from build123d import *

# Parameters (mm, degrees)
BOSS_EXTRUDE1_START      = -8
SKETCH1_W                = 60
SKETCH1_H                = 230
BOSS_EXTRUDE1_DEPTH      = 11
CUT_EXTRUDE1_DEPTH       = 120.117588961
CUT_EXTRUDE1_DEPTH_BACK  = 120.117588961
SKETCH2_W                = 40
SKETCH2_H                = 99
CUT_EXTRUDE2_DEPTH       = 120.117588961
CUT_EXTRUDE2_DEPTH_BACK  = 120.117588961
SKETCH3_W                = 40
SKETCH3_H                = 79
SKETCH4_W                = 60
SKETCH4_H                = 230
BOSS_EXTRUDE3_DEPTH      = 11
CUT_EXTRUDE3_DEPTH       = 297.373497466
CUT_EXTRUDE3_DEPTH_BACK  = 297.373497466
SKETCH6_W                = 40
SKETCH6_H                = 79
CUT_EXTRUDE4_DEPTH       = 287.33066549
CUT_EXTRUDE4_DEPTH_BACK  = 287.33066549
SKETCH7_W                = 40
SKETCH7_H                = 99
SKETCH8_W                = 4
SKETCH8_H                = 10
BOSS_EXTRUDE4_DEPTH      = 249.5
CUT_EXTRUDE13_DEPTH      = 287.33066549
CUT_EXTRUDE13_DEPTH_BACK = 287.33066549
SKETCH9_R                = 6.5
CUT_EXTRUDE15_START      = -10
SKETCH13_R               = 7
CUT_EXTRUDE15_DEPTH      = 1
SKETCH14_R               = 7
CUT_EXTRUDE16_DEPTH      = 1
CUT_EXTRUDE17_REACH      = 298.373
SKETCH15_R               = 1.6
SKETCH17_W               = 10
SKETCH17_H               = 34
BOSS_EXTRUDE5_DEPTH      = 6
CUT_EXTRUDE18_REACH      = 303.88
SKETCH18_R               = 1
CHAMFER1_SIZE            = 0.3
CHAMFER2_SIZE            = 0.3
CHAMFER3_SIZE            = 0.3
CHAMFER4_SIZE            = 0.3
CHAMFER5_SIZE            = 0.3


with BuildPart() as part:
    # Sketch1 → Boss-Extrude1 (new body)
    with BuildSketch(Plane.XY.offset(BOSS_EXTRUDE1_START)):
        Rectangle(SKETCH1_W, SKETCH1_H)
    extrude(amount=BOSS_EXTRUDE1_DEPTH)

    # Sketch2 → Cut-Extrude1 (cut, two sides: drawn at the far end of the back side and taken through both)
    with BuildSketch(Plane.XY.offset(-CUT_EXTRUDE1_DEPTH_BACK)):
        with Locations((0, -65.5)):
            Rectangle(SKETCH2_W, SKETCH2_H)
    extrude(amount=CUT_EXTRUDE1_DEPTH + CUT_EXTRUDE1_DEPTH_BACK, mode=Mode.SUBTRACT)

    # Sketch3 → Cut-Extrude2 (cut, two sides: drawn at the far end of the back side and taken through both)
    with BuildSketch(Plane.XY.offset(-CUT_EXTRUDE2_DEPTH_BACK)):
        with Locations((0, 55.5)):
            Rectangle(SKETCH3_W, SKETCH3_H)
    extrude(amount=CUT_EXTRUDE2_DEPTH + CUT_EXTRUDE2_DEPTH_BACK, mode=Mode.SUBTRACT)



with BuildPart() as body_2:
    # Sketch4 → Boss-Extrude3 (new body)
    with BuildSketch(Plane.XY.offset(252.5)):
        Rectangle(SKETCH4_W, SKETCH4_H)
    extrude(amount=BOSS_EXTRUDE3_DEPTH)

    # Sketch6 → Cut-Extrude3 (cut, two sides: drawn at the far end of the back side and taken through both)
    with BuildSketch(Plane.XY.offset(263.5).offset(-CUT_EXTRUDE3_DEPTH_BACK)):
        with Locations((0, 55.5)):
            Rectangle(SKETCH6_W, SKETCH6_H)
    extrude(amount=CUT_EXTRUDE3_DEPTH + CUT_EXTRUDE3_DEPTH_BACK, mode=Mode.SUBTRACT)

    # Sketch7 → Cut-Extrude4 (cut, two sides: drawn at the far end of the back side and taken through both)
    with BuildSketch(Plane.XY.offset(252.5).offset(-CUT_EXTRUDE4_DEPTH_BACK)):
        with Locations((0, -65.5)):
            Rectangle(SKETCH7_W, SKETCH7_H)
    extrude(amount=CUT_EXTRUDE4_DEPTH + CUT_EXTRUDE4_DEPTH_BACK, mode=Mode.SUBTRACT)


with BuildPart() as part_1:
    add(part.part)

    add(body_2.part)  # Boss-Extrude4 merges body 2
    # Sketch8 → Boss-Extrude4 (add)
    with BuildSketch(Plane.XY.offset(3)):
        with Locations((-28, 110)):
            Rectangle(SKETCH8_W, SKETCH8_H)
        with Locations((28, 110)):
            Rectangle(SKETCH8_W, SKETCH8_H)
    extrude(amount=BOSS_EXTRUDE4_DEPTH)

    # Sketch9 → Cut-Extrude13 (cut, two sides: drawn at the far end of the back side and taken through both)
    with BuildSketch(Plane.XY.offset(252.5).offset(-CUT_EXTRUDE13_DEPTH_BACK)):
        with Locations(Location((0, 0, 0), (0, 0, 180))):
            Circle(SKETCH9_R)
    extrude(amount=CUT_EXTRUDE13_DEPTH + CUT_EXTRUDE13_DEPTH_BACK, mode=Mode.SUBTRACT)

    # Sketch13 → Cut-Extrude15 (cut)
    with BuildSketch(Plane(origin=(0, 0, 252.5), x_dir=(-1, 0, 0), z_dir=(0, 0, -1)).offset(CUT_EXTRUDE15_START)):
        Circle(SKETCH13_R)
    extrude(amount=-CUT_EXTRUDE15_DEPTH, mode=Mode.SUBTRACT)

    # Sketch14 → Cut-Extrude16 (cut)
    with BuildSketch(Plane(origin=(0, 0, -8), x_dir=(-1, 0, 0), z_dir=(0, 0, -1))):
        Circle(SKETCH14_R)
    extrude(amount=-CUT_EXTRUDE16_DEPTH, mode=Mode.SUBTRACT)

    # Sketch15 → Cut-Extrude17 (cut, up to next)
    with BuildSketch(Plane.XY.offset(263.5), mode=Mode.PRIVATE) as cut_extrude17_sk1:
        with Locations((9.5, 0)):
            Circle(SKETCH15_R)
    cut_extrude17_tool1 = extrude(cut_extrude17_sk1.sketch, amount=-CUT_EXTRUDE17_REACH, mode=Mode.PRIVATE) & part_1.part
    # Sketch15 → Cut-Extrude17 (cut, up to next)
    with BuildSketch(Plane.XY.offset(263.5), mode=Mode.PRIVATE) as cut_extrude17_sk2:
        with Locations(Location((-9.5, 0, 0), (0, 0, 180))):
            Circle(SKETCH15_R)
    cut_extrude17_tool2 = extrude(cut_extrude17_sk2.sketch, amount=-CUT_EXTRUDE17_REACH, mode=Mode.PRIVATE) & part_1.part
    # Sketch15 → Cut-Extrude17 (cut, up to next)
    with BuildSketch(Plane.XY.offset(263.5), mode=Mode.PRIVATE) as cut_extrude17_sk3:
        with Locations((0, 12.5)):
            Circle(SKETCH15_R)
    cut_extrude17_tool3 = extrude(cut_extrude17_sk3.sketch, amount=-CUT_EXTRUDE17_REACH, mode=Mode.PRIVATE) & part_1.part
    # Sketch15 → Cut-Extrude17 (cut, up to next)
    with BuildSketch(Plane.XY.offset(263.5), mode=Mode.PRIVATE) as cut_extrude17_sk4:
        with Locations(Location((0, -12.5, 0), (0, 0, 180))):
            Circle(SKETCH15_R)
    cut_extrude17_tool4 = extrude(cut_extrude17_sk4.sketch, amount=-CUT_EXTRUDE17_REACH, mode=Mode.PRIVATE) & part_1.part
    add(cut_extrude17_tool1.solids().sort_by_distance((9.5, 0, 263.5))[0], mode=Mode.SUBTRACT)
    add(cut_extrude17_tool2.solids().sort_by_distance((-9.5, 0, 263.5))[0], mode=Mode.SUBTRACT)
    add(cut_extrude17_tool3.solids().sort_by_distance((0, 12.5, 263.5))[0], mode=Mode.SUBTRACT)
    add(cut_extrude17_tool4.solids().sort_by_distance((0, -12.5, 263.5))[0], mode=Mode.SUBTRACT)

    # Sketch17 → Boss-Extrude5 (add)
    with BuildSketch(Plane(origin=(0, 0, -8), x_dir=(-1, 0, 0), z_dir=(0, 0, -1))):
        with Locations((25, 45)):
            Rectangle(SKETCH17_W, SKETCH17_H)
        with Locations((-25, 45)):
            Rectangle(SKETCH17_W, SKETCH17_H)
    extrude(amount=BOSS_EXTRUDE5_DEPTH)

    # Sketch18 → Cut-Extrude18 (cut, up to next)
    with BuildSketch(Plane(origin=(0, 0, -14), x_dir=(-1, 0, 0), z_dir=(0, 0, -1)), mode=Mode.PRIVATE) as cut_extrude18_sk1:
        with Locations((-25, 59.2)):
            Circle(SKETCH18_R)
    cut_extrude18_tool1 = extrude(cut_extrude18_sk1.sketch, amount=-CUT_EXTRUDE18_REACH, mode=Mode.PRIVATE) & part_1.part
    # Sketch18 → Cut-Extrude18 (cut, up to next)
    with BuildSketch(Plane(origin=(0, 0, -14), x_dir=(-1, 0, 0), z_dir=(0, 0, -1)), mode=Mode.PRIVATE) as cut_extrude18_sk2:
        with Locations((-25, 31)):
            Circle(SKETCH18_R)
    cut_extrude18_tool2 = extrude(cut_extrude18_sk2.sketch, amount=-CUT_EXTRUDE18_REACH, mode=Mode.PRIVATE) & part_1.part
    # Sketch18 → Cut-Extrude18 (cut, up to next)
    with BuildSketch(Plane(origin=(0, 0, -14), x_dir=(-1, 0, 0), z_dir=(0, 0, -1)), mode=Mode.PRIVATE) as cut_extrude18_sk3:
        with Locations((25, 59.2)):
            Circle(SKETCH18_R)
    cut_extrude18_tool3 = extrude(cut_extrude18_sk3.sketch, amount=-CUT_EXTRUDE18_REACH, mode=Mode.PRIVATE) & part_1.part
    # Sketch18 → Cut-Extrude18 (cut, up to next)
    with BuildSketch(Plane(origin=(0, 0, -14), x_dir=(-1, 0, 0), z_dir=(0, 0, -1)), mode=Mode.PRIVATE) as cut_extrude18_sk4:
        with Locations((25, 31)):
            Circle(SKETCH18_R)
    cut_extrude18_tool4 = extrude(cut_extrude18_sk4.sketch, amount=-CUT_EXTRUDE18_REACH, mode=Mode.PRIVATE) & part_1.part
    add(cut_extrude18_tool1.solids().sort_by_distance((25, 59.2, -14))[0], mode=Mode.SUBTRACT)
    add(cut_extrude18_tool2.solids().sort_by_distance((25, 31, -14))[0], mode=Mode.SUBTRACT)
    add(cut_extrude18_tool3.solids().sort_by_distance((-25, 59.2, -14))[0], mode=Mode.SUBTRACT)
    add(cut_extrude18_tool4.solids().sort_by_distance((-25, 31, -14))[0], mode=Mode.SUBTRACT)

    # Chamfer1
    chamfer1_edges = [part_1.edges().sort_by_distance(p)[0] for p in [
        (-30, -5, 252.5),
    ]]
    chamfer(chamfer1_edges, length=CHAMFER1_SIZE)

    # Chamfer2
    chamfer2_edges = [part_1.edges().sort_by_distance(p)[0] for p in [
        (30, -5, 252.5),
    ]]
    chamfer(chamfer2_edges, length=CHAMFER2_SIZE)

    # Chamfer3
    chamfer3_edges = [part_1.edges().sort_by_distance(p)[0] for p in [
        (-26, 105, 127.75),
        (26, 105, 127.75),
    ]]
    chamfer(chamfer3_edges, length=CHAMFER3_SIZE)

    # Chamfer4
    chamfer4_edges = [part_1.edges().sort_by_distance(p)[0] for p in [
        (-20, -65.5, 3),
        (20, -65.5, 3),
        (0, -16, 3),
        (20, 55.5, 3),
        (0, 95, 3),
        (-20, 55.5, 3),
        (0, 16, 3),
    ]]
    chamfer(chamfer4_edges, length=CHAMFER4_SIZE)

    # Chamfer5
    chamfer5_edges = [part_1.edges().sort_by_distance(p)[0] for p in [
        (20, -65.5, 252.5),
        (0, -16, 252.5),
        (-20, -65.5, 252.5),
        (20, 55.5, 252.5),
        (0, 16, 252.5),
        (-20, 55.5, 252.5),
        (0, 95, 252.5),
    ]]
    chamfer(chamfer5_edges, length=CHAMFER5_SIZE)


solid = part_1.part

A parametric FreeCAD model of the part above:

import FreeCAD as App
import Part
import Sketcher


def edges_at(feature, points):
    """Names of the edges that pass closest to the given points."""
    edges = feature.Shape.Edges
    near = lambda p: min(range(len(edges)), key=lambda i: edges[i].distToShape(Part.Vertex(*p))[0])
    return sorted({f"Edge{near(p) + 1}" for p in points})


def add_polygon(sketch, points):
    """Adds a closed chain of lines whose ends are joined by coincident constraints."""
    first, n = sketch.GeometryCount, len(points)
    for a, b in zip(points, points[1:] + points[:1]):
        sketch.addGeometry(Part.LineSegment(App.Vector(*a, 0), App.Vector(*b, 0)), False)
    for i in range(n):
        sketch.addConstraint(Sketcher.Constraint("Coincident", first + i, 2, first + (i + 1) % n, 1))

doc = App.newDocument("Part")
body = doc.addObject("PartDesign::Body", "Body")

sketch1 = body.newObject("Sketcher::SketchObject", "Sketch")
sketch1.AttachmentSupport = (doc.getObject("XY_Plane"), [""])
sketch1.MapMode = "FlatFace"
sketch1.AttachmentOffset = App.Placement(App.Vector(0, 0, -8), App.Rotation())
add_polygon(sketch1, [(-30, 115), (-30, -115), (30, -115), (30, 115)])
sketch1.addConstraint(Sketcher.Constraint("Vertical", 0))
sketch1.addConstraint(Sketcher.Constraint("Horizontal", 1))
sketch1.addConstraint(Sketcher.Constraint("Vertical", 2))
sketch1.addConstraint(Sketcher.Constraint("Horizontal", 3))
sketch1.addConstraint(Sketcher.Constraint("Symmetric", 0, 2, 2, 2, -1, 1))
sketch1.addConstraint(Sketcher.Constraint("DistanceX", 1, 1, 1, 2, 60.0))
sketch1.addConstraint(Sketcher.Constraint("DistanceY", 0, 2, 0, 1, 230.0))
pad1 = body.newObject("PartDesign::Pad", "Pad")
pad1.Profile = sketch1
pad1.Length = 11

sketch2 = body.newObject("Sketcher::SketchObject", "Sketch001")
sketch2.AttachmentSupport = (doc.getObject("XY_Plane"), [""])
sketch2.MapMode = "FlatFace"
add_polygon(sketch2, [(-20, -16), (-20, -115), (20, -115), (20, -16)])
sketch2.addConstraint(Sketcher.Constraint("Vertical", 0))
sketch2.addConstraint(Sketcher.Constraint("Horizontal", 1))
sketch2.addConstraint(Sketcher.Constraint("Vertical", 2))
sketch2.addConstraint(Sketcher.Constraint("Horizontal", 3))
sketch2.addConstraint(Sketcher.Constraint("DistanceX", 1, 1, 1, 2, 40.0))
sketch2.addConstraint(Sketcher.Constraint("DistanceY", 0, 2, 0, 1, 99.0))
sketch2.addConstraint(Sketcher.Constraint("DistanceX", 0, 2, -1, 1, 20.0))
sketch2.addConstraint(Sketcher.Constraint("DistanceY", 0, 2, -1, 1, 115.0))
pocket1 = body.newObject("PartDesign::Pocket", "Pocket")
pocket1.Profile = sketch2
pocket1.Type = "ThroughAll"
pocket1.Midplane = True

sketch3 = body.newObject("Sketcher::SketchObject", "Sketch002")
sketch3.AttachmentSupport = (doc.getObject("XY_Plane"), [""])
sketch3.MapMode = "FlatFace"
add_polygon(sketch3, [(-20, 95), (-20, 16), (20, 16), (20, 95)])
sketch3.addConstraint(Sketcher.Constraint("Vertical", 0))
sketch3.addConstraint(Sketcher.Constraint("Horizontal", 1))
sketch3.addConstraint(Sketcher.Constraint("Vertical", 2))
sketch3.addConstraint(Sketcher.Constraint("Horizontal", 3))
sketch3.addConstraint(Sketcher.Constraint("DistanceX", 1, 1, 1, 2, 40.0))
sketch3.addConstraint(Sketcher.Constraint("DistanceY", 0, 2, 0, 1, 79.0))
sketch3.addConstraint(Sketcher.Constraint("DistanceX", 0, 2, -1, 1, 20.0))
sketch3.addConstraint(Sketcher.Constraint("DistanceY", -1, 1, 0, 2, 16.0))
pocket2 = body.newObject("PartDesign::Pocket", "Pocket001")
pocket2.Profile = sketch3
pocket2.Type = "ThroughAll"
pocket2.Midplane = True
body2 = doc.addObject("PartDesign::Body", "Body001")

sketch4 = body2.newObject("Sketcher::SketchObject", "Sketch003")
sketch4.AttachmentSupport = (doc.getObject("XY_Plane001"), [""])
sketch4.MapMode = "FlatFace"
sketch4.AttachmentOffset = App.Placement(App.Vector(0, 0, 252.5), App.Rotation())
add_polygon(sketch4, [(-30, 115), (-30, -115), (30, -115), (30, 115)])
sketch4.addConstraint(Sketcher.Constraint("Vertical", 0))
sketch4.addConstraint(Sketcher.Constraint("Horizontal", 1))
sketch4.addConstraint(Sketcher.Constraint("Vertical", 2))
sketch4.addConstraint(Sketcher.Constraint("Horizontal", 3))
sketch4.addConstraint(Sketcher.Constraint("Symmetric", 0, 2, 2, 2, -1, 1))
sketch4.addConstraint(Sketcher.Constraint("DistanceX", 1, 1, 1, 2, 60.0))
sketch4.addConstraint(Sketcher.Constraint("DistanceY", 0, 2, 0, 1, 230.0))
pad2 = body2.newObject("PartDesign::Pad", "Pad001")
pad2.Profile = sketch4
pad2.Length = 11

sketch5 = body2.newObject("Sketcher::SketchObject", "Sketch004")
sketch5.AttachmentSupport = (doc.getObject("XY_Plane001"), [""])
sketch5.MapMode = "FlatFace"
sketch5.AttachmentOffset = App.Placement(App.Vector(0, 0, 263.5), App.Rotation())
add_polygon(sketch5, [(-20, 95), (-20, 16), (20, 16), (20, 95)])
sketch5.addConstraint(Sketcher.Constraint("Vertical", 0))
sketch5.addConstraint(Sketcher.Constraint("Horizontal", 1))
sketch5.addConstraint(Sketcher.Constraint("Vertical", 2))
sketch5.addConstraint(Sketcher.Constraint("Horizontal", 3))
sketch5.addConstraint(Sketcher.Constraint("DistanceX", 1, 1, 1, 2, 40.0))
sketch5.addConstraint(Sketcher.Constraint("DistanceY", 0, 2, 0, 1, 79.0))
sketch5.addConstraint(Sketcher.Constraint("DistanceX", 0, 2, -1, 1, 20.0))
sketch5.addConstraint(Sketcher.Constraint("DistanceY", -1, 1, 0, 2, 16.0))
pocket3 = body2.newObject("PartDesign::Pocket", "Pocket002")
pocket3.Profile = sketch5
pocket3.Type = "ThroughAll"
pocket3.Midplane = True

sketch6 = body2.newObject("Sketcher::SketchObject", "Sketch005")
sketch6.AttachmentSupport = (doc.getObject("XY_Plane001"), [""])
sketch6.MapMode = "FlatFace"
sketch6.AttachmentOffset = App.Placement(App.Vector(0, 0, 252.5), App.Rotation())
add_polygon(sketch6, [(-20, -16), (-20, -115), (20, -115), (20, -16)])
sketch6.addConstraint(Sketcher.Constraint("Vertical", 0))
sketch6.addConstraint(Sketcher.Constraint("Horizontal", 1))
sketch6.addConstraint(Sketcher.Constraint("Vertical", 2))
sketch6.addConstraint(Sketcher.Constraint("Horizontal", 3))
sketch6.addConstraint(Sketcher.Constraint("DistanceX", 1, 1, 1, 2, 40.0))
sketch6.addConstraint(Sketcher.Constraint("DistanceY", 0, 2, 0, 1, 99.0))
sketch6.addConstraint(Sketcher.Constraint("DistanceX", 0, 2, -1, 1, 20.0))
sketch6.addConstraint(Sketcher.Constraint("DistanceY", 0, 2, -1, 1, 115.0))
pocket4 = body2.newObject("PartDesign::Pocket", "Pocket003")
pocket4.Profile = sketch6
pocket4.Type = "ThroughAll"
pocket4.Midplane = True
body.AllowCompound = True
doc.recompute()

boolean = body.newObject("PartDesign::Boolean", "Boolean")
boolean.Type = "Fuse"
boolean.addObjects([body2])

sketch7 = body.newObject("Sketcher::SketchObject", "Sketch006")
sketch7.AttachmentSupport = (doc.getObject("XY_Plane"), [""])
sketch7.MapMode = "FlatFace"
sketch7.AttachmentOffset = App.Placement(App.Vector(0, 0, 3), App.Rotation())
add_polygon(sketch7, [(-30, 115), (-30, 105), (-26, 105), (-26, 115)])
add_polygon(sketch7, [(26, 115), (26, 105), (30, 105), (30, 115)])
sketch7.addConstraint(Sketcher.Constraint("Vertical", 0))
sketch7.addConstraint(Sketcher.Constraint("Horizontal", 1))
sketch7.addConstraint(Sketcher.Constraint("Vertical", 2))
sketch7.addConstraint(Sketcher.Constraint("Horizontal", 3))
sketch7.addConstraint(Sketcher.Constraint("Vertical", 4))
sketch7.addConstraint(Sketcher.Constraint("Horizontal", 5))
sketch7.addConstraint(Sketcher.Constraint("Vertical", 6))
sketch7.addConstraint(Sketcher.Constraint("Horizontal", 7))
sketch7.addConstraint(Sketcher.Constraint("Symmetric", 1, 2, 4, 2, -2))
sketch7.addConstraint(Sketcher.Constraint("Symmetric", 3, 2, 6, 2, -2))
sketch7.addConstraint(Sketcher.Constraint("DistanceX", 1, 1, 1, 2, 4.0))
sketch7.addConstraint(Sketcher.Constraint("DistanceY", 0, 2, 0, 1, 10.0))
sketch7.addConstraint(Sketcher.Constraint("DistanceX", 0, 2, -1, 1, 30.0))
sketch7.addConstraint(Sketcher.Constraint("DistanceY", -1, 1, 0, 2, 105.0))
pad3 = body.newObject("PartDesign::Pad", "Pad002")
pad3.Profile = sketch7
pad3.Length = 249.5

sketch8 = body.newObject("Sketcher::SketchObject", "Sketch007")
sketch8.AttachmentSupport = (doc.getObject("XY_Plane"), [""])
sketch8.MapMode = "FlatFace"
sketch8.AttachmentOffset = App.Placement(App.Vector(0, 0, 252.5), App.Rotation())
sketch8.addGeometry(Part.Circle(App.Vector(0, 0, 0), App.Vector(0, 0, 1), 6.5), False)
sketch8.addConstraint(Sketcher.Constraint("Coincident", 0, 3, -1, 1))
sketch8.addConstraint(Sketcher.Constraint("Diameter", 0, 13.0))
pocket5 = body.newObject("PartDesign::Pocket", "Pocket004")
pocket5.Profile = sketch8
pocket5.Type = "ThroughAll"
pocket5.Midplane = True

sketch9 = body.newObject("Sketcher::SketchObject", "Sketch008")
sketch9.AttachmentSupport = (doc.getObject("XY_Plane"), [""])
sketch9.MapMode = "FlatFace"
sketch9.AttachmentOffset = App.Placement(App.Vector(0, 0, 262.5), App.Rotation())
sketch9.addGeometry(Part.Circle(App.Vector(0, 0, 0), App.Vector(0, 0, 1), 7), False)
sketch9.addConstraint(Sketcher.Constraint("Coincident", 0, 3, -1, 1))
sketch9.addConstraint(Sketcher.Constraint("Diameter", 0, 14.0))
pocket6 = body.newObject("PartDesign::Pocket", "Pocket005")
pocket6.Profile = sketch9
pocket6.Length = 1
pocket6.Reversed = True

sketch10 = body.newObject("Sketcher::SketchObject", "Sketch009")
sketch10.AttachmentSupport = (doc.getObject("XY_Plane"), [""])
sketch10.MapMode = "FlatFace"
sketch10.AttachmentOffset = App.Placement(App.Vector(0, 0, -8), App.Rotation())
sketch10.addGeometry(Part.Circle(App.Vector(0, 0, 0), App.Vector(0, 0, 1), 7), False)
sketch10.addConstraint(Sketcher.Constraint("Coincident", 0, 3, -1, 1))
sketch10.addConstraint(Sketcher.Constraint("Diameter", 0, 14.0))
pocket7 = body.newObject("PartDesign::Pocket", "Pocket006")
pocket7.Profile = sketch10
pocket7.Length = 1
pocket7.Reversed = True

sketch11 = body.newObject("Sketcher::SketchObject", "Sketch010")
sketch11.AttachmentSupport = (doc.getObject("XY_Plane"), [""])
sketch11.MapMode = "FlatFace"
sketch11.AttachmentOffset = App.Placement(App.Vector(0, 0, 263.5), App.Rotation())
sketch11.addGeometry(Part.Circle(App.Vector(9.5, 0, 0), App.Vector(0, 0, 1), 1.6), False)
sketch11.addConstraint(Sketcher.Constraint("PointOnObject", 0, 3, -1))
sketch11.addConstraint(Sketcher.Constraint("Diameter", 0, 3.2))
sketch11.addConstraint(Sketcher.Constraint("DistanceX", -1, 1, 0, 3, 9.5))
pocket8 = body.newObject("PartDesign::Pocket", "Pocket007")
pocket8.Profile = sketch11
pocket8.Type = "UpToFirst"

sketch12 = body.newObject("Sketcher::SketchObject", "Sketch011")
sketch12.AttachmentSupport = (doc.getObject("XY_Plane"), [""])
sketch12.MapMode = "FlatFace"
sketch12.AttachmentOffset = App.Placement(App.Vector(0, 0, 263.5), App.Rotation())
sketch12.addGeometry(Part.Circle(App.Vector(-9.5, 0, 0), App.Vector(0, 0, 1), 1.6), False)
sketch12.addConstraint(Sketcher.Constraint("PointOnObject", 0, 3, -1))
sketch12.addConstraint(Sketcher.Constraint("Diameter", 0, 3.2))
sketch12.addConstraint(Sketcher.Constraint("DistanceX", 0, 3, -1, 1, 9.5))
pocket9 = body.newObject("PartDesign::Pocket", "Pocket008")
pocket9.Profile = sketch12
pocket9.Type = "UpToFirst"

sketch13 = body.newObject("Sketcher::SketchObject", "Sketch012")
sketch13.AttachmentSupport = (doc.getObject("XY_Plane"), [""])
sketch13.MapMode = "FlatFace"
sketch13.AttachmentOffset = App.Placement(App.Vector(0, 0, 263.5), App.Rotation())
sketch13.addGeometry(Part.Circle(App.Vector(0, 12.5, 0), App.Vector(0, 0, 1), 1.6), False)
sketch13.addConstraint(Sketcher.Constraint("PointOnObject", 0, 3, -2))
sketch13.addConstraint(Sketcher.Constraint("Diameter", 0, 3.2))
sketch13.addConstraint(Sketcher.Constraint("DistanceY", -1, 1, 0, 3, 12.5))
pocket10 = body.newObject("PartDesign::Pocket", "Pocket009")
pocket10.Profile = sketch13
pocket10.Type = "UpToFirst"

sketch14 = body.newObject("Sketcher::SketchObject", "Sketch013")
sketch14.AttachmentSupport = (doc.getObject("XY_Plane"), [""])
sketch14.MapMode = "FlatFace"
sketch14.AttachmentOffset = App.Placement(App.Vector(0, 0, 263.5), App.Rotation())
sketch14.addGeometry(Part.Circle(App.Vector(0, -12.5, 0), App.Vector(0, 0, 1), 1.6), False)
sketch14.addConstraint(Sketcher.Constraint("PointOnObject", 0, 3, -2))
sketch14.addConstraint(Sketcher.Constraint("Diameter", 0, 3.2))
sketch14.addConstraint(Sketcher.Constraint("DistanceY", 0, 3, -1, 1, 12.5))
pocket11 = body.newObject("PartDesign::Pocket", "Pocket010")
pocket11.Profile = sketch14
pocket11.Type = "UpToFirst"

sketch15 = body.newObject("Sketcher::SketchObject", "Sketch014")
sketch15.AttachmentSupport = (doc.getObject("XY_Plane"), [""])
sketch15.MapMode = "FlatFace"
sketch15.AttachmentOffset = App.Placement(App.Vector(0, 0, -8), App.Rotation())
add_polygon(sketch15, [(-20, 62), (-20, 28), (-30, 28), (-30, 62)])
add_polygon(sketch15, [(30, 62), (30, 28), (20, 28), (20, 62)])
sketch15.addConstraint(Sketcher.Constraint("Vertical", 0))
sketch15.addConstraint(Sketcher.Constraint("Horizontal", 1))
sketch15.addConstraint(Sketcher.Constraint("Vertical", 2))
sketch15.addConstraint(Sketcher.Constraint("Horizontal", 3))
sketch15.addConstraint(Sketcher.Constraint("Vertical", 4))
sketch15.addConstraint(Sketcher.Constraint("Horizontal", 5))
sketch15.addConstraint(Sketcher.Constraint("Vertical", 6))
sketch15.addConstraint(Sketcher.Constraint("Horizontal", 7))
sketch15.addConstraint(Sketcher.Constraint("Symmetric", 1, 2, 4, 2, -2))
sketch15.addConstraint(Sketcher.Constraint("Symmetric", 3, 2, 6, 2, -2))
sketch15.addConstraint(Sketcher.Constraint("DistanceX", 1, 2, 1, 1, 10.0))
sketch15.addConstraint(Sketcher.Constraint("DistanceY", 0, 2, 0, 1, 34.0))
sketch15.addConstraint(Sketcher.Constraint("DistanceX", 0, 2, -1, 1, 20.0))
sketch15.addConstraint(Sketcher.Constraint("DistanceY", -1, 1, 0, 2, 28.0))
pad4 = body.newObject("PartDesign::Pad", "Pad003")
pad4.Profile = sketch15
pad4.Length = 6
pad4.Reversed = True

sketch16 = body.newObject("Sketcher::SketchObject", "Sketch015")
sketch16.AttachmentSupport = (doc.getObject("XY_Plane"), [""])
sketch16.MapMode = "FlatFace"
sketch16.AttachmentOffset = App.Placement(App.Vector(0, 0, -14), App.Rotation())
sketch16.addGeometry(Part.Circle(App.Vector(25, 59.2, 0), App.Vector(0, 0, 1), 1), False)
sketch16.addConstraint(Sketcher.Constraint("Diameter", 0, 2.0))
sketch16.addConstraint(Sketcher.Constraint("DistanceX", -1, 1, 0, 3, 25.0))
sketch16.addConstraint(Sketcher.Constraint("DistanceY", -1, 1, 0, 3, 59.2))
pocket12 = body.newObject("PartDesign::Pocket", "Pocket011")
pocket12.Profile = sketch16
pocket12.Type = "UpToFirst"
pocket12.Reversed = True

sketch17 = body.newObject("Sketcher::SketchObject", "Sketch016")
sketch17.AttachmentSupport = (doc.getObject("XY_Plane"), [""])
sketch17.MapMode = "FlatFace"
sketch17.AttachmentOffset = App.Placement(App.Vector(0, 0, -14), App.Rotation())
sketch17.addGeometry(Part.Circle(App.Vector(25, 31, 0), App.Vector(0, 0, 1), 1), False)
sketch17.addConstraint(Sketcher.Constraint("Diameter", 0, 2.0))
sketch17.addConstraint(Sketcher.Constraint("DistanceX", -1, 1, 0, 3, 25.0))
sketch17.addConstraint(Sketcher.Constraint("DistanceY", -1, 1, 0, 3, 31.0))
pocket13 = body.newObject("PartDesign::Pocket", "Pocket012")
pocket13.Profile = sketch17
pocket13.Type = "UpToFirst"
pocket13.Reversed = True

sketch18 = body.newObject("Sketcher::SketchObject", "Sketch017")
sketch18.AttachmentSupport = (doc.getObject("XY_Plane"), [""])
sketch18.MapMode = "FlatFace"
sketch18.AttachmentOffset = App.Placement(App.Vector(0, 0, -14), App.Rotation())
sketch18.addGeometry(Part.Circle(App.Vector(-25, 59.2, 0), App.Vector(0, 0, 1), 1), False)
sketch18.addConstraint(Sketcher.Constraint("Diameter", 0, 2.0))
sketch18.addConstraint(Sketcher.Constraint("DistanceX", 0, 3, -1, 1, 25.0))
sketch18.addConstraint(Sketcher.Constraint("DistanceY", -1, 1, 0, 3, 59.2))
pocket14 = body.newObject("PartDesign::Pocket", "Pocket013")
pocket14.Profile = sketch18
pocket14.Type = "UpToFirst"
pocket14.Reversed = True

sketch19 = body.newObject("Sketcher::SketchObject", "Sketch018")
sketch19.AttachmentSupport = (doc.getObject("XY_Plane"), [""])
sketch19.MapMode = "FlatFace"
sketch19.AttachmentOffset = App.Placement(App.Vector(0, 0, -14), App.Rotation())
sketch19.addGeometry(Part.Circle(App.Vector(-25, 31, 0), App.Vector(0, 0, 1), 1), False)
sketch19.addConstraint(Sketcher.Constraint("Diameter", 0, 2.0))
sketch19.addConstraint(Sketcher.Constraint("DistanceX", 0, 3, -1, 1, 25.0))
sketch19.addConstraint(Sketcher.Constraint("DistanceY", -1, 1, 0, 3, 31.0))
pocket15 = body.newObject("PartDesign::Pocket", "Pocket014")
pocket15.Profile = sketch19
pocket15.Type = "UpToFirst"
pocket15.Reversed = True
doc.recompute()

chamfer = body.newObject("PartDesign::Chamfer", "Chamfer")
chamfer.Base = (pocket15, edges_at(pocket15, [(-30, -5, 252.5)]))
chamfer.Size = 0.3
doc.recompute()

chamfer2 = body.newObject("PartDesign::Chamfer", "Chamfer001")
chamfer2.Base = (chamfer, edges_at(chamfer, [(30, -5, 252.5)]))
chamfer2.Size = 0.3
doc.recompute()

chamfer3 = body.newObject("PartDesign::Chamfer", "Chamfer002")
chamfer3.Base = (chamfer2, edges_at(chamfer2, [(-26, 105, 127.75), (26, 105, 127.75)]))
chamfer3.Size = 0.3
doc.recompute()

chamfer4 = body.newObject("PartDesign::Chamfer", "Chamfer003")
chamfer4.Base = (chamfer3, edges_at(chamfer3, [
    (-20, -65.5, 3),
    (20, -65.5, 3),
    (0, -16, 3),
    (20, 55.5, 3),
    (0, 95, 3),
    (-20, 55.5, 3),
    (0, 16, 3),
]))
chamfer4.Size = 0.3
doc.recompute()

chamfer5 = body.newObject("PartDesign::Chamfer", "Chamfer004")
chamfer5.Base = (chamfer4, edges_at(chamfer4, [
    (20, -65.5, 252.5),
    (0, -16, 252.5),
    (-20, -65.5, 252.5),
    (20, 55.5, 252.5),
    (0, 16, 252.5),
    (-20, 55.5, 252.5),
    (0, 95, 252.5),
]))
chamfer5.Size = 0.3

doc.recompute()
